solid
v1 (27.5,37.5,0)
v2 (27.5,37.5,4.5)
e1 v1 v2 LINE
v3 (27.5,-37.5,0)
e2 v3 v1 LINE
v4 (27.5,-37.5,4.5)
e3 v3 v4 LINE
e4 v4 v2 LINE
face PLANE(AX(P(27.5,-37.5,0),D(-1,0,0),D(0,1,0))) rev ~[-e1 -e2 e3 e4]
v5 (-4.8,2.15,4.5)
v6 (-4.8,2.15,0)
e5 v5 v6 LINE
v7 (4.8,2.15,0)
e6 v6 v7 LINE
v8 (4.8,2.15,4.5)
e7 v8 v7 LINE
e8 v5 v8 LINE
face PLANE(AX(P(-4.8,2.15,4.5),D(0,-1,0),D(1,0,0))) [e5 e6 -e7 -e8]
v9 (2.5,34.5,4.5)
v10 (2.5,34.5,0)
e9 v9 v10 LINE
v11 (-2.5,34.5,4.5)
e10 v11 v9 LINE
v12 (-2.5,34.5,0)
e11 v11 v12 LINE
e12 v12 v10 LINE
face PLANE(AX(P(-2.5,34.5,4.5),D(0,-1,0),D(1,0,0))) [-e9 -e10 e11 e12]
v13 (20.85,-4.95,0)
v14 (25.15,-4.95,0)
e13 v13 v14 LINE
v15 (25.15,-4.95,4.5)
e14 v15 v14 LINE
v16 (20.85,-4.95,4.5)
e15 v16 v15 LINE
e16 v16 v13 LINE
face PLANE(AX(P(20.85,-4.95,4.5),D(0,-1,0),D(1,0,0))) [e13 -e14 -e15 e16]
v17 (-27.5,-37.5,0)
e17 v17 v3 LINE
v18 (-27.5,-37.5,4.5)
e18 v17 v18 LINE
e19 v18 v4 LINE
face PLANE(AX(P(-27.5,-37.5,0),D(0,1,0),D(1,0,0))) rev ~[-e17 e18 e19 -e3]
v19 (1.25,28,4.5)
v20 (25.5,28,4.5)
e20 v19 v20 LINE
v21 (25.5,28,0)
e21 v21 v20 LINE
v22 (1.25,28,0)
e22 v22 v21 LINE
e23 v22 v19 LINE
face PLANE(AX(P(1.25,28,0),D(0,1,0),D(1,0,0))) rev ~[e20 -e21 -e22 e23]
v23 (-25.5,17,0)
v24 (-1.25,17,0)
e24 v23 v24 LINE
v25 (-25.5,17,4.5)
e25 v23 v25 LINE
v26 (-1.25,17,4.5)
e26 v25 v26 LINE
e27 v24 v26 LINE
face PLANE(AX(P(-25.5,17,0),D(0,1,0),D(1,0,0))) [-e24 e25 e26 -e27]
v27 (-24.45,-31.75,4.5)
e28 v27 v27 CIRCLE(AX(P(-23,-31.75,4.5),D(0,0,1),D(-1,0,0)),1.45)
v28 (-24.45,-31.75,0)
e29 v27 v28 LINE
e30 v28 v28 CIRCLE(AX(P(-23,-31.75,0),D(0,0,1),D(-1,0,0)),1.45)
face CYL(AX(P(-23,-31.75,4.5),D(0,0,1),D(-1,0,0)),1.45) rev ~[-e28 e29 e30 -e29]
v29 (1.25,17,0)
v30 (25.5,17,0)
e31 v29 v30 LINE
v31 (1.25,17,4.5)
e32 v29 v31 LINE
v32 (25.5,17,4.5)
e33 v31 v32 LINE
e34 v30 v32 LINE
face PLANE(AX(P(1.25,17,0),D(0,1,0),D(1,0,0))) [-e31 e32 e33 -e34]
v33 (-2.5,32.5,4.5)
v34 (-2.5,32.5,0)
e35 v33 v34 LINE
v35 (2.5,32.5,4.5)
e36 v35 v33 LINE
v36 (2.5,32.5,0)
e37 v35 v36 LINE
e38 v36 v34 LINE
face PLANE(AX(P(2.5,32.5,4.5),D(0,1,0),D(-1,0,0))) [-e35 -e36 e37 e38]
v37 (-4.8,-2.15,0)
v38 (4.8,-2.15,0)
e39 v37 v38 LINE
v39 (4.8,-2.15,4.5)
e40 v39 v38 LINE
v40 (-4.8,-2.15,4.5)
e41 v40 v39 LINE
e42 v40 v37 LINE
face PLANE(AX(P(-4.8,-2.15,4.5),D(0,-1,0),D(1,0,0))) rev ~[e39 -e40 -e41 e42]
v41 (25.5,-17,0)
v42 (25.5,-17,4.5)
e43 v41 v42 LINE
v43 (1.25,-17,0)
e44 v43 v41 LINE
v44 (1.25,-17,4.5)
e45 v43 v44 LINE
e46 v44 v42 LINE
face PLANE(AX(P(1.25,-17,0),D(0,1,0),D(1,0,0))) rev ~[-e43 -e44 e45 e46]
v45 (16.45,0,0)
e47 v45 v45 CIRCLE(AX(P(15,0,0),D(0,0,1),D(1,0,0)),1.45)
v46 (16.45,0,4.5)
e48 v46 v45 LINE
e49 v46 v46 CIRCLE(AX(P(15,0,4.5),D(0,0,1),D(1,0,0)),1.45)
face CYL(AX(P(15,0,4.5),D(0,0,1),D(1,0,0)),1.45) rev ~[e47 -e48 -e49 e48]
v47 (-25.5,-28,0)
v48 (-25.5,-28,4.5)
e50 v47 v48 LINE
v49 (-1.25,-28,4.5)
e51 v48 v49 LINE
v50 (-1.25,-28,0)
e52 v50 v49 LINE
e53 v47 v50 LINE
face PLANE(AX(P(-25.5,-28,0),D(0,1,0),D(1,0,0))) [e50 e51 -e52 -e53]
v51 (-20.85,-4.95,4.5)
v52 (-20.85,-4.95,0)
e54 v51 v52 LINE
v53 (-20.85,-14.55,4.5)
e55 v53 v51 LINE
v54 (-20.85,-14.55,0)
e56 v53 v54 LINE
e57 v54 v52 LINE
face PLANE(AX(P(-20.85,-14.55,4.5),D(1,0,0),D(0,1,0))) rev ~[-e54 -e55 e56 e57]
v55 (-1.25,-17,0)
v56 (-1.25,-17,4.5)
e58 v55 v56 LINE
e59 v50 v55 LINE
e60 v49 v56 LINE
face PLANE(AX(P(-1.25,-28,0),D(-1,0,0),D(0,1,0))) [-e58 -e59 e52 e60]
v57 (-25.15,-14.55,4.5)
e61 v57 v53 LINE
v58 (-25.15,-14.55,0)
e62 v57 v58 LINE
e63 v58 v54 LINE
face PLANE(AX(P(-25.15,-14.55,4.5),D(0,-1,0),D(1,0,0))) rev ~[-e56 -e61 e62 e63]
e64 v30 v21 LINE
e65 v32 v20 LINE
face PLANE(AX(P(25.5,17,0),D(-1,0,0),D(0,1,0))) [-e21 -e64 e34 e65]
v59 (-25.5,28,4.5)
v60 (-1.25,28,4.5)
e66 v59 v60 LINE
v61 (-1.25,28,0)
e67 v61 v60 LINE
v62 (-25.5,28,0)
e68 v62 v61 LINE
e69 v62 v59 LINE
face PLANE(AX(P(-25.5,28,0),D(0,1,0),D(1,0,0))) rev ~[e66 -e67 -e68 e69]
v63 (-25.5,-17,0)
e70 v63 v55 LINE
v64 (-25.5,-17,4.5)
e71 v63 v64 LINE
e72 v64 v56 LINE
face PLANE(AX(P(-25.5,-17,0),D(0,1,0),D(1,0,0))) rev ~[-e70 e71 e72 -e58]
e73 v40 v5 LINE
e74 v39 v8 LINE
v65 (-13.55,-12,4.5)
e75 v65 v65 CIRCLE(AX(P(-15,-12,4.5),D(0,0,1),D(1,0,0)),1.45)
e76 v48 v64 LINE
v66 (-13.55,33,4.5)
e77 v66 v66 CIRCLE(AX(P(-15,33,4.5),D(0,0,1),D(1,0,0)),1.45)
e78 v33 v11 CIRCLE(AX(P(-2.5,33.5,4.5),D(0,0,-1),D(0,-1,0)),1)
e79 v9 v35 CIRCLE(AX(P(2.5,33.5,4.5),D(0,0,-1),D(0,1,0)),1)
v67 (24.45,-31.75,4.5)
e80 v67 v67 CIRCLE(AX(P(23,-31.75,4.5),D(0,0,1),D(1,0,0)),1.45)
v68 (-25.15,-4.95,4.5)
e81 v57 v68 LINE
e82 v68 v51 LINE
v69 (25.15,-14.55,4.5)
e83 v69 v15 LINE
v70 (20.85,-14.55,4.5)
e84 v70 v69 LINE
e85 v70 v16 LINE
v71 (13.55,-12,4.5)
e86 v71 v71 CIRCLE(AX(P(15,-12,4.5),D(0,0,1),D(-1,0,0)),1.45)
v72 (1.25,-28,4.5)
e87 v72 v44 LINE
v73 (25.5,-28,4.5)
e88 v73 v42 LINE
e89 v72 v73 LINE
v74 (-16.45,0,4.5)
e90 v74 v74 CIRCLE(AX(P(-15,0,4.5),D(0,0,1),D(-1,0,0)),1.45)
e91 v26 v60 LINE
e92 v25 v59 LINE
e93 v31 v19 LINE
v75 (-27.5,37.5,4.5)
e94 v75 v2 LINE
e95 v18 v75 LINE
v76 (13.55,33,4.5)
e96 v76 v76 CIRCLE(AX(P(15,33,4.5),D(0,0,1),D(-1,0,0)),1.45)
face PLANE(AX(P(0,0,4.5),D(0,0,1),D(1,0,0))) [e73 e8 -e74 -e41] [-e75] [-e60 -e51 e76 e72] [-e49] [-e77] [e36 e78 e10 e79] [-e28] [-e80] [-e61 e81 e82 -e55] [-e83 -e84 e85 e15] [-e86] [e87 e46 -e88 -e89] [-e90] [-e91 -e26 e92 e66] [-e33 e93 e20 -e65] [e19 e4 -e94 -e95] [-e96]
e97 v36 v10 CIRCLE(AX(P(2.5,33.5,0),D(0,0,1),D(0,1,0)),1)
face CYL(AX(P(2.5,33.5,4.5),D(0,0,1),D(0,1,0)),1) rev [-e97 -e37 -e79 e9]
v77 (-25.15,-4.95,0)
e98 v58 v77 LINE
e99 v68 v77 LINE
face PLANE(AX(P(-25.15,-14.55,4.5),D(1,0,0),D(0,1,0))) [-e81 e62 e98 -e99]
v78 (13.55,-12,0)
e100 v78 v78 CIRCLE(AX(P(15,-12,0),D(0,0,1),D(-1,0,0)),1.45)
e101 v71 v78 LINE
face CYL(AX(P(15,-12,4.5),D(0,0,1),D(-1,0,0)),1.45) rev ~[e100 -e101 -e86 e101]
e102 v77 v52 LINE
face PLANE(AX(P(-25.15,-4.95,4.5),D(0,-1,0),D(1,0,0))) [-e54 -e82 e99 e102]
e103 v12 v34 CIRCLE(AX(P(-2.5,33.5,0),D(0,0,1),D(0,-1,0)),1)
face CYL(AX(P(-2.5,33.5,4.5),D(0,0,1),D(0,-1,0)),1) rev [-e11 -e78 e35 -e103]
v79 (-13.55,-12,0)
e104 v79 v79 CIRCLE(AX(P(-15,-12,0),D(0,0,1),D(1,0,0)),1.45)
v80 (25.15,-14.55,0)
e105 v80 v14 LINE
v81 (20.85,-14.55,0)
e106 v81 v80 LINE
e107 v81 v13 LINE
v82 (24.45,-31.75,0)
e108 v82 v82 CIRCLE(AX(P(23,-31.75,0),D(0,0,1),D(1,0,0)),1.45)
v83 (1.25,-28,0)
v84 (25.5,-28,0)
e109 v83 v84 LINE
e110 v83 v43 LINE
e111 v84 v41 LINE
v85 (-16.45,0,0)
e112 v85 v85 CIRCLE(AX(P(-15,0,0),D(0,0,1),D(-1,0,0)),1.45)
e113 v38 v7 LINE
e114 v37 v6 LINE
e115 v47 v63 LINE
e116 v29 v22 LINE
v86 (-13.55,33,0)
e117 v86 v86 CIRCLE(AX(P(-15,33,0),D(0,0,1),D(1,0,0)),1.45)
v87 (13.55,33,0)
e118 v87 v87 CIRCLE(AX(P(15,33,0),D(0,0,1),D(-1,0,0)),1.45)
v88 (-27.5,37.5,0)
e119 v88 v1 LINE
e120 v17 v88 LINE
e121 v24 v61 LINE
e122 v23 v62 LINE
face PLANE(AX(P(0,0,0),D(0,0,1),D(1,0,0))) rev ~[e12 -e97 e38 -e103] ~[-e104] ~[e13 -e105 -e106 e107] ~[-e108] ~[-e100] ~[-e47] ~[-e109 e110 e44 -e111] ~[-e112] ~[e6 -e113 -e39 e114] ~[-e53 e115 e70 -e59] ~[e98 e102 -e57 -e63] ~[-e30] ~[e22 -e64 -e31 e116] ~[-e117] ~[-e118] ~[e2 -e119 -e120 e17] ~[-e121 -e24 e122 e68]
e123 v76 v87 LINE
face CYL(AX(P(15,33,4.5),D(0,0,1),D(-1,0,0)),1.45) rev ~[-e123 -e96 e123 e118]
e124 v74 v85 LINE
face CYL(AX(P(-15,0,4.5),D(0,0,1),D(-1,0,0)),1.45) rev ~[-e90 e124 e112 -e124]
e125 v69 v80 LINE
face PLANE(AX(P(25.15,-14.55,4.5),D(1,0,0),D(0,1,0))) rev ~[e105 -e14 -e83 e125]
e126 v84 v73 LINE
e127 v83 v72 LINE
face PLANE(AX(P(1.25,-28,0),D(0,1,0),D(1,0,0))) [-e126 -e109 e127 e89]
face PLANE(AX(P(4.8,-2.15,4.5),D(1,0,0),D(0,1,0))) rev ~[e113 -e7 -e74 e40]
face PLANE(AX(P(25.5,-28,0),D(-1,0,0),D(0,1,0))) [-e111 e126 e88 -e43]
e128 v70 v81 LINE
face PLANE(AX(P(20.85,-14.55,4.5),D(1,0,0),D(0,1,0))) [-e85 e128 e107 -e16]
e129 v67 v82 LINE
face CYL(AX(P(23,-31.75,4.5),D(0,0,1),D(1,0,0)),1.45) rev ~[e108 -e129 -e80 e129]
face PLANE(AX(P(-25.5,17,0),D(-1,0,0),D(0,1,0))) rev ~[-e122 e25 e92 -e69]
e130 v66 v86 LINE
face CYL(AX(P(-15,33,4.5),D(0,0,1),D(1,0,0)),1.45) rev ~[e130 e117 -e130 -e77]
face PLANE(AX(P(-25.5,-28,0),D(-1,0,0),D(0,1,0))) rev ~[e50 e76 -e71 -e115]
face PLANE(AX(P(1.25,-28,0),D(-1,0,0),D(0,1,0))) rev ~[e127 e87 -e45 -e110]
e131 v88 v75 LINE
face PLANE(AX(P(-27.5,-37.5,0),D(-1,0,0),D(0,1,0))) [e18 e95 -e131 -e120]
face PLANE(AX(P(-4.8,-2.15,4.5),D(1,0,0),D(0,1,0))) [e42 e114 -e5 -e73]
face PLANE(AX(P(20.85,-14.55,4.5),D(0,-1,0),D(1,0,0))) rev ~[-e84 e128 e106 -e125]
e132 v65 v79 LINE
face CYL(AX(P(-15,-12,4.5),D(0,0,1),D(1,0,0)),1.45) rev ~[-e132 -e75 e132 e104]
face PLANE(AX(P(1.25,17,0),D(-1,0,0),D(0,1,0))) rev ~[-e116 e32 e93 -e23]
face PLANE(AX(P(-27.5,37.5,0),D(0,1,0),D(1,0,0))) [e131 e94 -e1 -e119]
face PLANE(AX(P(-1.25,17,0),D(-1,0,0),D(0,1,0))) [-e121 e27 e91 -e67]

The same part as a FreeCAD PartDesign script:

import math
import FreeCAD as App
import Part
import Sketcher
Q = App.Units.Quantity

doc = App.newDocument("Part")
params = doc.addObject("Spreadsheet::Sheet", "Params")
for row, (alias, value) in enumerate([
    ("sketch1_width", "55 mm"),
    ("sketch1_height", "75 mm"),
    ("sketch1_height2", "11 mm"),
    ("sketch1_width2", "24.25 mm"),
    ("pad1_length", "4.5 mm"),
    ("sketch2_diameter", "2.9 mm"),
    ("sketch3_width", "9.6 mm"),
    ("sketch3_height", "4.3 mm"),
    ("sketch4_diameter", "2.9 mm"),
    ("sketch4_width", "4.3 mm"),
    ("sketch4_height", "9.6 mm"),
    ("sketch5_diameter", "2.9 mm"),
    ("sketch6_radius", "1 mm"),
    ("sketch6_width", "5 mm"),
], start=1):
    params.set(f"A{row}", alias)
    params.set(f"B{row}", "=" + value)
    params.setAlias(f"B{row}", alias)

body = doc.addObject("PartDesign::Body", "Body")

sketch1 = body.newObject("Sketcher::SketchObject", "Sketch")
sketch1.AttachmentSupport = (doc.getObject("XY_Plane"), [""])
sketch1.MapMode = "FlatFace"
sketch1.addGeometry([
    Part.LineSegment(App.Vector(-28, 38, 0), App.Vector(-28, -38, 0)),
    Part.LineSegment(App.Vector(-28, -38, 0), App.Vector(28, -38, 0)),
    Part.LineSegment(App.Vector(28, -38, 0), App.Vector(28, 38, 0)),
    Part.LineSegment(App.Vector(28, 38, 0), App.Vector(-28, 38, 0)),
    Part.LineSegment(App.Vector(-1, -28, 0), App.Vector(-26, -28, 0)),
    Part.LineSegment(App.Vector(-26, -28, 0), App.Vector(-26, -17, 0)),
    Part.LineSegment(App.Vector(-26, -17, 0), App.Vector(-1, -17, 0)),
    Part.LineSegment(App.Vector(-1, -17, 0), App.Vector(-1, -28, 0)),
    Part.LineSegment(App.Vector(26, -28, 0), App.Vector(1, -28, 0)),
    Part.LineSegment(App.Vector(1, -28, 0), App.Vector(1, -17, 0)),
    Part.LineSegment(App.Vector(1, -17, 0), App.Vector(26, -17, 0)),
    Part.LineSegment(App.Vector(26, -17, 0), App.Vector(26, -28, 0)),
    Part.LineSegment(App.Vector(-1, 17, 0), App.Vector(-26, 17, 0)),
    Part.LineSegment(App.Vector(-26, 17, 0), App.Vector(-26, 28, 0)),
    Part.LineSegment(App.Vector(-26, 28, 0), App.Vector(-1, 28, 0)),
    Part.LineSegment(App.Vector(-1, 28, 0), App.Vector(-1, 17, 0)),
    Part.LineSegment(App.Vector(26, 17, 0), App.Vector(1, 17, 0)),
    Part.LineSegment(App.Vector(1, 17, 0), App.Vector(1, 28, 0)),
    Part.LineSegment(App.Vector(1, 28, 0), App.Vector(26, 28, 0)),
    Part.LineSegment(App.Vector(26, 28, 0), App.Vector(26, 17, 0)),
], False)
sketch1.addConstraint([
    Sketcher.Constraint("Coincident", 0, 2, 1, 1),
    Sketcher.Constraint("Coincident", 1, 2, 2, 1),
    Sketcher.Constraint("Coincident", 2, 2, 3, 1),
    Sketcher.Constraint("Coincident", 3, 2, 0, 1),
    Sketcher.Constraint("Coincident", 4, 2, 5, 1),
    Sketcher.Constraint("Coincident", 5, 2, 6, 1),
    Sketcher.Constraint("Coincident", 6, 2, 7, 1),
    Sketcher.Constraint("Coincident", 7, 2, 4, 1),
    Sketcher.Constraint("Coincident", 8, 2, 9, 1),
    Sketcher.Constraint("Coincident", 9, 2, 10, 1),
    Sketcher.Constraint("Coincident", 10, 2, 11, 1),
    Sketcher.Constraint("Coincident", 11, 2, 8, 1),
    Sketcher.Constraint("Coincident", 12, 2, 13, 1),
    Sketcher.Constraint("Coincident", 13, 2, 14, 1),
    Sketcher.Constraint("Coincident", 14, 2, 15, 1),
    Sketcher.Constraint("Coincident", 15, 2, 12, 1),
    Sketcher.Constraint("Coincident", 16, 2, 17, 1),
    Sketcher.Constraint("Coincident", 17, 2, 18, 1),
    Sketcher.Constraint("Coincident", 18, 2, 19, 1),
    Sketcher.Constraint("Coincident", 19, 2, 16, 1),
    Sketcher.Constraint("Vertical", 0),
    Sketcher.Constraint("Horizontal", 1),
    Sketcher.Constraint("Vertical", 2),
    Sketcher.Constraint("Horizontal", 3),
    Sketcher.Constraint("Horizontal", 4),
    Sketcher.Constraint("Vertical", 5),
    Sketcher.Constraint("Horizontal", 6),
    Sketcher.Constraint("Vertical", 7),
    Sketcher.Constraint("Horizontal", 8),
    Sketcher.Constraint("Vertical", 9),
    Sketcher.Constraint("Horizontal", 10),
    Sketcher.Constraint("Vertical", 11),
    Sketcher.Constraint("Horizontal", 12),
    Sketcher.Constraint("Vertical", 13),
    Sketcher.Constraint("Horizontal", 14),
    Sketcher.Constraint("Vertical", 15),
    Sketcher.Constraint("Horizontal", 16),
    Sketcher.Constraint("Vertical", 17),
    Sketcher.Constraint("Horizontal", 18),
    Sketcher.Constraint("Vertical", 19),
    Sketcher.Constraint("Symmetric", 0, 2, 2, 2, -1, 1),
    Sketcher.Constraint("Symmetric", 10, 2, 12, 2, -1, 1),
    Sketcher.Constraint("Symmetric", 8, 2, 14, 2, -1, 1),
    Sketcher.Constraint("Symmetric", 6, 2, 16, 2, -1, 1),
    Sketcher.Constraint("Symmetric", 4, 2, 18, 2, -1, 1),
    Sketcher.Constraint("Symmetric", 7, 2, 8, 2, -2),
    Sketcher.Constraint("Symmetric", 5, 2, 10, 2, -2),
    Sketcher.Constraint("DistanceX", 1, 1, 1, 2, Q("55 mm")),
    Sketcher.Constraint("DistanceY", 0, 2, 0, 1, Q("75 mm")),
    Sketcher.Constraint("DistanceY", 5, 1, 5, 2, Q("11 mm")),
    Sketcher.Constraint("DistanceY", 4, 2, -1, 1, Q("28 mm")),
    Sketcher.Constraint("DistanceX", 0, 2, 4, 2, Q("2 mm")),
    Sketcher.Constraint("DistanceX", 4, 2, 4, 1, Q("24.25 mm")),
])
sketch1.setExpression("Constraints[47]", "Params.sketch1_width")
sketch1.setExpression("Constraints[48]", "Params.sketch1_height")
sketch1.setExpression("Constraints[49]", "Params.sketch1_height2")
sketch1.setExpression("Constraints[52]", "Params.sketch1_width2")
pad1 = body.newObject("PartDesign::Pad", "Pad")
pad1.Profile = sketch1
pad1.setExpression("Length", "Params.pad1_length")

sketch2 = body.newObject("Sketcher::SketchObject", "Sketch001")
sketch2.AttachmentSupport = (doc.getObject("XY_Plane"), [""])
sketch2.MapMode = "FlatFace"
sketch2.AttachmentOffset = App.Placement(App.Vector(0, 0, 4.5), App.Rotation())
sketch2.addGeometry([
    Part.Circle(App.Vector(-15, 33, 0), App.Vector(0, 0, 1), 1.4),
    Part.Circle(App.Vector(15, 33, 0), App.Vector(0, 0, 1), 1.4),
    Part.Circle(App.Vector(15, 0, 0), App.Vector(0, 0, 1), 1.4),
    Part.Circle(App.Vector(-15, 0, 0), App.Vector(0, 0, 1), 1.4),
], False)
sketch2.addConstraint([
    Sketcher.Constraint("Equal", 0, 1),
    Sketcher.Constraint("Equal", 1, 2),
    Sketcher.Constraint("Equal", 2, 3),
    Sketcher.Constraint("Symmetric", 2, 3, 3, 3, -1, 1),
    Sketcher.Constraint("Symmetric", 0, 3, 1, 3, -2),
    Sketcher.Constraint("PointOnObject", 2, 3, -1),
    Sketcher.Constraint("Vertical", 1, 3, 2, 3),
    Sketcher.Constraint("Diameter", 0, Q("2.9 mm")),
    Sketcher.Constraint("DistanceX", 0, 3, -1, 1, Q("15 mm")),
    Sketcher.Constraint("DistanceY", -1, 1, 0, 3, Q("33 mm")),
])
sketch2.setExpression("Constraints[7]", "Params.sketch2_diameter")
pocket1 = body.newObject("PartDesign::Pocket", "Pocket")
pocket1.Profile = sketch2
pocket1.Type = "ThroughAll"

sketch3 = body.newObject("Sketcher::SketchObject", "Sketch002")
sketch3.AttachmentSupport = (doc.getObject("XY_Plane"), [""])
sketch3.MapMode = "FlatFace"
sketch3.AttachmentOffset = App.Placement(App.Vector(0, 0, 4.5), App.Rotation())
sketch3.addGeometry([
    Part.LineSegment(App.Vector(-4.8, 2.1, 0), App.Vector(-4.8, -2.1, 0)),
    Part.LineSegment(App.Vector(-4.8, -2.1, 0), App.Vector(4.8, -2.1, 0)),
    Part.LineSegment(App.Vector(4.8, -2.1, 0), App.Vector(4.8, 2.1, 0)),
    Part.LineSegment(App.Vector(4.8, 2.1, 0), App.Vector(-4.8, 2.1, 0)),
], False)
sketch3.addConstraint([
    Sketcher.Constraint("Coincident", 0, 2, 1, 1),
    Sketcher.Constraint("Coincident", 1, 2, 2, 1),
    Sketcher.Constraint("Coincident", 2, 2, 3, 1),
    Sketcher.Constraint("Coincident", 3, 2, 0, 1),
    Sketcher.Constraint("Vertical", 0),
    Sketcher.Constraint("Horizontal", 1),
    Sketcher.Constraint("Vertical", 2),
    Sketcher.Constraint("Horizontal", 3),
    Sketcher.Constraint("Symmetric", 0, 2, 2, 2, -1, 1),
    Sketcher.Constraint("DistanceX", 1, 1, 1, 2, Q("9.6 mm")),
    Sketcher.Constraint("DistanceY", 0, 2, 0, 1, Q("4.3 mm")),
])
sketch3.setExpression("Constraints[9]", "Params.sketch3_width")
sketch3.setExpression("Constraints[10]", "Params.sketch3_height")
pocket2 = body.newObject("PartDesign::Pocket", "Pocket001")
pocket2.Profile = sketch3
pocket2.Type = "ThroughAll"

sketch4 = body.newObject("Sketcher::SketchObject", "Sketch003")
sketch4.AttachmentSupport = (doc.getObject("XY_Plane"), [""])
sketch4.MapMode = "FlatFace"
sketch4.AttachmentOffset = App.Placement(App.Vector(0, 0, 4.5), App.Rotation())
sketch4.addGeometry([
    Part.Circle(App.Vector(23, -31.8, 0), App.Vector(0, 0, 1), 1.4),
    Part.Circle(App.Vector(-23, -31.8, 0), App.Vector(0, 0, 1), 1.4),
    Part.LineSegment(App.Vector(20.9, -5, 0), App.Vector(20.9, -14.6, 0)),
    Part.LineSegment(App.Vector(20.9, -14.6, 0), App.Vector(25.1, -14.6, 0)),
    Part.LineSegment(App.Vector(25.1, -14.6, 0), App.Vector(25.1, -5, 0)),
    Part.LineSegment(App.Vector(25.1, -5, 0), App.Vector(20.9, -5, 0)),
    Part.LineSegment(App.Vector(-25.1, -5, 0), App.Vector(-25.1, -14.6, 0)),
    Part.LineSegment(App.Vector(-25.1, -14.6, 0), App.Vector(-20.9, -14.6, 0)),
    Part.LineSegment(App.Vector(-20.9, -14.6, 0), App.Vector(-20.9, -5, 0)),
    Part.LineSegment(App.Vector(-20.9, -5, 0), App.Vector(-25.1, -5, 0)),
], False)
sketch4.addConstraint([
    Sketcher.Constraint("Coincident", 2, 2, 3, 1),
    Sketcher.Constraint("Coincident", 3, 2, 4, 1),
    Sketcher.Constraint("Coincident", 4, 2, 5, 1),
    Sketcher.Constraint("Coincident", 5, 2, 2, 1),
    Sketcher.Constraint("Coincident", 6, 2, 7, 1),
    Sketcher.Constraint("Coincident", 7, 2, 8, 1),
    Sketcher.Constraint("Coincident", 8, 2, 9, 1),
    Sketcher.Constraint("Coincident", 9, 2, 6, 1),
    Sketcher.Constraint("Vertical", 2),
    Sketcher.Constraint("Horizontal", 3),
    Sketcher.Constraint("Vertical", 4),
    Sketcher.Constraint("Horizontal", 5),
    Sketcher.Constraint("Vertical", 6),
    Sketcher.Constraint("Horizontal", 7),
    Sketcher.Constraint("Vertical", 8),
    Sketcher.Constraint("Horizontal", 9),
    Sketcher.Constraint("Equal", 0, 1),
    Sketcher.Constraint("Symmetric", 0, 3, 1, 3, -2),
    Sketcher.Constraint("Symmetric", 3, 2, 6, 2, -2),
    Sketcher.Constraint("Symmetric", 5, 2, 8, 2, -2),
    Sketcher.Constraint("Diameter", 0, Q("2.9 mm")),
    Sketcher.Constraint("DistanceX", 3, 1, 3, 2, Q("4.3 mm")),
    Sketcher.Constraint("DistanceY", 2, 2, 2, 1, Q("9.6 mm")),
    Sketcher.Constraint("DistanceX", -1, 1, 0, 3, Q("23 mm")),
    Sketcher.Constraint("DistanceX", 6, 2, 2, 2, Q("46 mm")),
    Sketcher.Constraint("DistanceY", 0, 3, 2, 2, Q("17.2 mm")),
    Sketcher.Constraint("DistanceY", 0, 3, -1, 1, Q("31.75 mm")),
])
sketch4.setExpression("Constraints[20]", "Params.sketch4_diameter")
sketch4.setExpression("Constraints[21]", "Params.sketch4_width")
sketch4.setExpression("Constraints[22]", "Params.sketch4_height")
pocket3 = body.newObject("PartDesign::Pocket", "Pocket002")
pocket3.Profile = sketch4
pocket3.Type = "ThroughAll"

sketch5 = body.newObject("Sketcher::SketchObject", "Sketch004")
sketch5.AttachmentSupport = (doc.getObject("XY_Plane"), [""])
sketch5.MapMode = "FlatFace"
sketch5.AttachmentOffset = App.Placement(App.Vector(0, 0, 4.5), App.Rotation())
sketch5.addGeometry([
    Part.Circle(App.Vector(-15, -12, 0), App.Vector(0, 0, 1), 1.4),
    Part.Circle(App.Vector(15, -12, 0), App.Vector(0, 0, 1), 1.4),
], False)
sketch5.addConstraint([
    Sketcher.Constraint("Equal", 0, 1),
    Sketcher.Constraint("Symmetric", 0, 3, 1, 3, -2),
    Sketcher.Constraint("Diameter", 0, Q("2.9 mm")),
    Sketcher.Constraint("DistanceX", 0, 3, -1, 1, Q("15 mm")),
    Sketcher.Constraint("DistanceY", 0, 3, -1, 1, Q("12 mm")),
])
sketch5.setExpression("Constraints[2]", "Params.sketch5_diameter")
pocket4 = body.newObject("PartDesign::Pocket", "Pocket003")
pocket4.Profile = sketch5
pocket4.Type = "ThroughAll"

sketch6 = body.newObject("Sketcher::SketchObject", "Sketch005")
sketch6.AttachmentSupport = (doc.getObject("XY_Plane"), [""])
sketch6.MapMode = "FlatFace"
sketch6.AttachmentOffset = App.Placement(App.Vector(0, 0, 4.5), App.Rotation())
sketch6.addGeometry([
    Part.LineSegment(App.Vector(2.5, 34.5, 0), App.Vector(-2.5, 34.5, 0)),
    Part.ArcOfCircle(Part.Circle(App.Vector(-2.5, 33.5, 0), App.Vector(0, 0, 1), 1), math.radians(90), math.radians(270)),
    Part.LineSegment(App.Vector(-2.5, 32.5, 0), App.Vector(2.5, 32.5, 0)),
    Part.ArcOfCircle(Part.Circle(App.Vector(2.5, 33.5, 0), App.Vector(0, 0, 1), 1), math.radians(-90), math.radians(90)),
], False)
sketch6.addConstraint([
    Sketcher.Constraint("Tangent", 0, 2, 1, 1),
    Sketcher.Constraint("Tangent", 1, 2, 2, 1),
    Sketcher.Constraint("Tangent", 2, 2, 3, 1),
    Sketcher.Constraint("Tangent", 3, 2, 0, 1),
    Sketcher.Constraint("Horizontal", 0),
    Sketcher.Constraint("Horizontal", 2),
    Sketcher.Constraint("Radius", 1, Q("1 mm")),
    Sketcher.Constraint("DistanceX", 0, 2, 0, 1, Q("5 mm")),
    Sketcher.Constraint("DistanceX", 1, 3, -1, 1, Q("2.5 mm")),
    Sketcher.Constraint("DistanceY", -1, 1, 1, 3, Q("33.5 mm")),
])
sketch6.setExpression("Constraints[6]", "Params.sketch6_radius")
sketch6.setExpression("Constraints[7]", "Params.sketch6_width")
pocket5 = body.newObject("PartDesign::Pocket", "Pocket004")
pocket5.Profile = sketch6
pocket5.Type = "ThroughAll"

doc.recompute()
